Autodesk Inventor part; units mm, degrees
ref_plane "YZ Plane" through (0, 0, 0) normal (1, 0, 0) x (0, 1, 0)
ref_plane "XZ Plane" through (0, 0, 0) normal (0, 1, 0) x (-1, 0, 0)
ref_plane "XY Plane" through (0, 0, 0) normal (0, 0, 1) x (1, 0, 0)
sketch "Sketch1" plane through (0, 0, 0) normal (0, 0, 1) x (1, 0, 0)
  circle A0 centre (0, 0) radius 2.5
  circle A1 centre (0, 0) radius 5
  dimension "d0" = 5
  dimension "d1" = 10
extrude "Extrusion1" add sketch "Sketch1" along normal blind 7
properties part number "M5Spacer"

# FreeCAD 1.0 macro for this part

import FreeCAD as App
import Part
import Sketcher

V = App.Vector
Q = App.Units.Quantity

doc = App.newDocument("Part")
body = doc.addObject("PartDesign::Body", "Body")

sketch1 = body.newObject("Sketcher::SketchObject", "Sketch")
sketch1.AttachmentSupport = (doc.getObject("XY_Plane"), [""])
sketch1.MapMode = "FlatFace"
sketch1.addGeometry([
    Part.Circle(V(0, 0, 0), V(0, 0, 1), 5),
    Part.Circle(V(0, 0, 0), V(0, 0, 1), 2.5),
], False)
sketch1.addConstraint([
    Sketcher.Constraint("Coincident", 0, 3, -1, 1),
    Sketcher.Constraint("Coincident", 1, 3, -1, 1),
    Sketcher.Constraint("Diameter", 0, Q("10 mm")),
    Sketcher.Constraint("Diameter", 1, Q("5 mm")),
])
pad1 = body.newObject("PartDesign::Pad", "Pad")
pad1.Profile = sketch1
pad1.Length = 7

doc.recompute()
